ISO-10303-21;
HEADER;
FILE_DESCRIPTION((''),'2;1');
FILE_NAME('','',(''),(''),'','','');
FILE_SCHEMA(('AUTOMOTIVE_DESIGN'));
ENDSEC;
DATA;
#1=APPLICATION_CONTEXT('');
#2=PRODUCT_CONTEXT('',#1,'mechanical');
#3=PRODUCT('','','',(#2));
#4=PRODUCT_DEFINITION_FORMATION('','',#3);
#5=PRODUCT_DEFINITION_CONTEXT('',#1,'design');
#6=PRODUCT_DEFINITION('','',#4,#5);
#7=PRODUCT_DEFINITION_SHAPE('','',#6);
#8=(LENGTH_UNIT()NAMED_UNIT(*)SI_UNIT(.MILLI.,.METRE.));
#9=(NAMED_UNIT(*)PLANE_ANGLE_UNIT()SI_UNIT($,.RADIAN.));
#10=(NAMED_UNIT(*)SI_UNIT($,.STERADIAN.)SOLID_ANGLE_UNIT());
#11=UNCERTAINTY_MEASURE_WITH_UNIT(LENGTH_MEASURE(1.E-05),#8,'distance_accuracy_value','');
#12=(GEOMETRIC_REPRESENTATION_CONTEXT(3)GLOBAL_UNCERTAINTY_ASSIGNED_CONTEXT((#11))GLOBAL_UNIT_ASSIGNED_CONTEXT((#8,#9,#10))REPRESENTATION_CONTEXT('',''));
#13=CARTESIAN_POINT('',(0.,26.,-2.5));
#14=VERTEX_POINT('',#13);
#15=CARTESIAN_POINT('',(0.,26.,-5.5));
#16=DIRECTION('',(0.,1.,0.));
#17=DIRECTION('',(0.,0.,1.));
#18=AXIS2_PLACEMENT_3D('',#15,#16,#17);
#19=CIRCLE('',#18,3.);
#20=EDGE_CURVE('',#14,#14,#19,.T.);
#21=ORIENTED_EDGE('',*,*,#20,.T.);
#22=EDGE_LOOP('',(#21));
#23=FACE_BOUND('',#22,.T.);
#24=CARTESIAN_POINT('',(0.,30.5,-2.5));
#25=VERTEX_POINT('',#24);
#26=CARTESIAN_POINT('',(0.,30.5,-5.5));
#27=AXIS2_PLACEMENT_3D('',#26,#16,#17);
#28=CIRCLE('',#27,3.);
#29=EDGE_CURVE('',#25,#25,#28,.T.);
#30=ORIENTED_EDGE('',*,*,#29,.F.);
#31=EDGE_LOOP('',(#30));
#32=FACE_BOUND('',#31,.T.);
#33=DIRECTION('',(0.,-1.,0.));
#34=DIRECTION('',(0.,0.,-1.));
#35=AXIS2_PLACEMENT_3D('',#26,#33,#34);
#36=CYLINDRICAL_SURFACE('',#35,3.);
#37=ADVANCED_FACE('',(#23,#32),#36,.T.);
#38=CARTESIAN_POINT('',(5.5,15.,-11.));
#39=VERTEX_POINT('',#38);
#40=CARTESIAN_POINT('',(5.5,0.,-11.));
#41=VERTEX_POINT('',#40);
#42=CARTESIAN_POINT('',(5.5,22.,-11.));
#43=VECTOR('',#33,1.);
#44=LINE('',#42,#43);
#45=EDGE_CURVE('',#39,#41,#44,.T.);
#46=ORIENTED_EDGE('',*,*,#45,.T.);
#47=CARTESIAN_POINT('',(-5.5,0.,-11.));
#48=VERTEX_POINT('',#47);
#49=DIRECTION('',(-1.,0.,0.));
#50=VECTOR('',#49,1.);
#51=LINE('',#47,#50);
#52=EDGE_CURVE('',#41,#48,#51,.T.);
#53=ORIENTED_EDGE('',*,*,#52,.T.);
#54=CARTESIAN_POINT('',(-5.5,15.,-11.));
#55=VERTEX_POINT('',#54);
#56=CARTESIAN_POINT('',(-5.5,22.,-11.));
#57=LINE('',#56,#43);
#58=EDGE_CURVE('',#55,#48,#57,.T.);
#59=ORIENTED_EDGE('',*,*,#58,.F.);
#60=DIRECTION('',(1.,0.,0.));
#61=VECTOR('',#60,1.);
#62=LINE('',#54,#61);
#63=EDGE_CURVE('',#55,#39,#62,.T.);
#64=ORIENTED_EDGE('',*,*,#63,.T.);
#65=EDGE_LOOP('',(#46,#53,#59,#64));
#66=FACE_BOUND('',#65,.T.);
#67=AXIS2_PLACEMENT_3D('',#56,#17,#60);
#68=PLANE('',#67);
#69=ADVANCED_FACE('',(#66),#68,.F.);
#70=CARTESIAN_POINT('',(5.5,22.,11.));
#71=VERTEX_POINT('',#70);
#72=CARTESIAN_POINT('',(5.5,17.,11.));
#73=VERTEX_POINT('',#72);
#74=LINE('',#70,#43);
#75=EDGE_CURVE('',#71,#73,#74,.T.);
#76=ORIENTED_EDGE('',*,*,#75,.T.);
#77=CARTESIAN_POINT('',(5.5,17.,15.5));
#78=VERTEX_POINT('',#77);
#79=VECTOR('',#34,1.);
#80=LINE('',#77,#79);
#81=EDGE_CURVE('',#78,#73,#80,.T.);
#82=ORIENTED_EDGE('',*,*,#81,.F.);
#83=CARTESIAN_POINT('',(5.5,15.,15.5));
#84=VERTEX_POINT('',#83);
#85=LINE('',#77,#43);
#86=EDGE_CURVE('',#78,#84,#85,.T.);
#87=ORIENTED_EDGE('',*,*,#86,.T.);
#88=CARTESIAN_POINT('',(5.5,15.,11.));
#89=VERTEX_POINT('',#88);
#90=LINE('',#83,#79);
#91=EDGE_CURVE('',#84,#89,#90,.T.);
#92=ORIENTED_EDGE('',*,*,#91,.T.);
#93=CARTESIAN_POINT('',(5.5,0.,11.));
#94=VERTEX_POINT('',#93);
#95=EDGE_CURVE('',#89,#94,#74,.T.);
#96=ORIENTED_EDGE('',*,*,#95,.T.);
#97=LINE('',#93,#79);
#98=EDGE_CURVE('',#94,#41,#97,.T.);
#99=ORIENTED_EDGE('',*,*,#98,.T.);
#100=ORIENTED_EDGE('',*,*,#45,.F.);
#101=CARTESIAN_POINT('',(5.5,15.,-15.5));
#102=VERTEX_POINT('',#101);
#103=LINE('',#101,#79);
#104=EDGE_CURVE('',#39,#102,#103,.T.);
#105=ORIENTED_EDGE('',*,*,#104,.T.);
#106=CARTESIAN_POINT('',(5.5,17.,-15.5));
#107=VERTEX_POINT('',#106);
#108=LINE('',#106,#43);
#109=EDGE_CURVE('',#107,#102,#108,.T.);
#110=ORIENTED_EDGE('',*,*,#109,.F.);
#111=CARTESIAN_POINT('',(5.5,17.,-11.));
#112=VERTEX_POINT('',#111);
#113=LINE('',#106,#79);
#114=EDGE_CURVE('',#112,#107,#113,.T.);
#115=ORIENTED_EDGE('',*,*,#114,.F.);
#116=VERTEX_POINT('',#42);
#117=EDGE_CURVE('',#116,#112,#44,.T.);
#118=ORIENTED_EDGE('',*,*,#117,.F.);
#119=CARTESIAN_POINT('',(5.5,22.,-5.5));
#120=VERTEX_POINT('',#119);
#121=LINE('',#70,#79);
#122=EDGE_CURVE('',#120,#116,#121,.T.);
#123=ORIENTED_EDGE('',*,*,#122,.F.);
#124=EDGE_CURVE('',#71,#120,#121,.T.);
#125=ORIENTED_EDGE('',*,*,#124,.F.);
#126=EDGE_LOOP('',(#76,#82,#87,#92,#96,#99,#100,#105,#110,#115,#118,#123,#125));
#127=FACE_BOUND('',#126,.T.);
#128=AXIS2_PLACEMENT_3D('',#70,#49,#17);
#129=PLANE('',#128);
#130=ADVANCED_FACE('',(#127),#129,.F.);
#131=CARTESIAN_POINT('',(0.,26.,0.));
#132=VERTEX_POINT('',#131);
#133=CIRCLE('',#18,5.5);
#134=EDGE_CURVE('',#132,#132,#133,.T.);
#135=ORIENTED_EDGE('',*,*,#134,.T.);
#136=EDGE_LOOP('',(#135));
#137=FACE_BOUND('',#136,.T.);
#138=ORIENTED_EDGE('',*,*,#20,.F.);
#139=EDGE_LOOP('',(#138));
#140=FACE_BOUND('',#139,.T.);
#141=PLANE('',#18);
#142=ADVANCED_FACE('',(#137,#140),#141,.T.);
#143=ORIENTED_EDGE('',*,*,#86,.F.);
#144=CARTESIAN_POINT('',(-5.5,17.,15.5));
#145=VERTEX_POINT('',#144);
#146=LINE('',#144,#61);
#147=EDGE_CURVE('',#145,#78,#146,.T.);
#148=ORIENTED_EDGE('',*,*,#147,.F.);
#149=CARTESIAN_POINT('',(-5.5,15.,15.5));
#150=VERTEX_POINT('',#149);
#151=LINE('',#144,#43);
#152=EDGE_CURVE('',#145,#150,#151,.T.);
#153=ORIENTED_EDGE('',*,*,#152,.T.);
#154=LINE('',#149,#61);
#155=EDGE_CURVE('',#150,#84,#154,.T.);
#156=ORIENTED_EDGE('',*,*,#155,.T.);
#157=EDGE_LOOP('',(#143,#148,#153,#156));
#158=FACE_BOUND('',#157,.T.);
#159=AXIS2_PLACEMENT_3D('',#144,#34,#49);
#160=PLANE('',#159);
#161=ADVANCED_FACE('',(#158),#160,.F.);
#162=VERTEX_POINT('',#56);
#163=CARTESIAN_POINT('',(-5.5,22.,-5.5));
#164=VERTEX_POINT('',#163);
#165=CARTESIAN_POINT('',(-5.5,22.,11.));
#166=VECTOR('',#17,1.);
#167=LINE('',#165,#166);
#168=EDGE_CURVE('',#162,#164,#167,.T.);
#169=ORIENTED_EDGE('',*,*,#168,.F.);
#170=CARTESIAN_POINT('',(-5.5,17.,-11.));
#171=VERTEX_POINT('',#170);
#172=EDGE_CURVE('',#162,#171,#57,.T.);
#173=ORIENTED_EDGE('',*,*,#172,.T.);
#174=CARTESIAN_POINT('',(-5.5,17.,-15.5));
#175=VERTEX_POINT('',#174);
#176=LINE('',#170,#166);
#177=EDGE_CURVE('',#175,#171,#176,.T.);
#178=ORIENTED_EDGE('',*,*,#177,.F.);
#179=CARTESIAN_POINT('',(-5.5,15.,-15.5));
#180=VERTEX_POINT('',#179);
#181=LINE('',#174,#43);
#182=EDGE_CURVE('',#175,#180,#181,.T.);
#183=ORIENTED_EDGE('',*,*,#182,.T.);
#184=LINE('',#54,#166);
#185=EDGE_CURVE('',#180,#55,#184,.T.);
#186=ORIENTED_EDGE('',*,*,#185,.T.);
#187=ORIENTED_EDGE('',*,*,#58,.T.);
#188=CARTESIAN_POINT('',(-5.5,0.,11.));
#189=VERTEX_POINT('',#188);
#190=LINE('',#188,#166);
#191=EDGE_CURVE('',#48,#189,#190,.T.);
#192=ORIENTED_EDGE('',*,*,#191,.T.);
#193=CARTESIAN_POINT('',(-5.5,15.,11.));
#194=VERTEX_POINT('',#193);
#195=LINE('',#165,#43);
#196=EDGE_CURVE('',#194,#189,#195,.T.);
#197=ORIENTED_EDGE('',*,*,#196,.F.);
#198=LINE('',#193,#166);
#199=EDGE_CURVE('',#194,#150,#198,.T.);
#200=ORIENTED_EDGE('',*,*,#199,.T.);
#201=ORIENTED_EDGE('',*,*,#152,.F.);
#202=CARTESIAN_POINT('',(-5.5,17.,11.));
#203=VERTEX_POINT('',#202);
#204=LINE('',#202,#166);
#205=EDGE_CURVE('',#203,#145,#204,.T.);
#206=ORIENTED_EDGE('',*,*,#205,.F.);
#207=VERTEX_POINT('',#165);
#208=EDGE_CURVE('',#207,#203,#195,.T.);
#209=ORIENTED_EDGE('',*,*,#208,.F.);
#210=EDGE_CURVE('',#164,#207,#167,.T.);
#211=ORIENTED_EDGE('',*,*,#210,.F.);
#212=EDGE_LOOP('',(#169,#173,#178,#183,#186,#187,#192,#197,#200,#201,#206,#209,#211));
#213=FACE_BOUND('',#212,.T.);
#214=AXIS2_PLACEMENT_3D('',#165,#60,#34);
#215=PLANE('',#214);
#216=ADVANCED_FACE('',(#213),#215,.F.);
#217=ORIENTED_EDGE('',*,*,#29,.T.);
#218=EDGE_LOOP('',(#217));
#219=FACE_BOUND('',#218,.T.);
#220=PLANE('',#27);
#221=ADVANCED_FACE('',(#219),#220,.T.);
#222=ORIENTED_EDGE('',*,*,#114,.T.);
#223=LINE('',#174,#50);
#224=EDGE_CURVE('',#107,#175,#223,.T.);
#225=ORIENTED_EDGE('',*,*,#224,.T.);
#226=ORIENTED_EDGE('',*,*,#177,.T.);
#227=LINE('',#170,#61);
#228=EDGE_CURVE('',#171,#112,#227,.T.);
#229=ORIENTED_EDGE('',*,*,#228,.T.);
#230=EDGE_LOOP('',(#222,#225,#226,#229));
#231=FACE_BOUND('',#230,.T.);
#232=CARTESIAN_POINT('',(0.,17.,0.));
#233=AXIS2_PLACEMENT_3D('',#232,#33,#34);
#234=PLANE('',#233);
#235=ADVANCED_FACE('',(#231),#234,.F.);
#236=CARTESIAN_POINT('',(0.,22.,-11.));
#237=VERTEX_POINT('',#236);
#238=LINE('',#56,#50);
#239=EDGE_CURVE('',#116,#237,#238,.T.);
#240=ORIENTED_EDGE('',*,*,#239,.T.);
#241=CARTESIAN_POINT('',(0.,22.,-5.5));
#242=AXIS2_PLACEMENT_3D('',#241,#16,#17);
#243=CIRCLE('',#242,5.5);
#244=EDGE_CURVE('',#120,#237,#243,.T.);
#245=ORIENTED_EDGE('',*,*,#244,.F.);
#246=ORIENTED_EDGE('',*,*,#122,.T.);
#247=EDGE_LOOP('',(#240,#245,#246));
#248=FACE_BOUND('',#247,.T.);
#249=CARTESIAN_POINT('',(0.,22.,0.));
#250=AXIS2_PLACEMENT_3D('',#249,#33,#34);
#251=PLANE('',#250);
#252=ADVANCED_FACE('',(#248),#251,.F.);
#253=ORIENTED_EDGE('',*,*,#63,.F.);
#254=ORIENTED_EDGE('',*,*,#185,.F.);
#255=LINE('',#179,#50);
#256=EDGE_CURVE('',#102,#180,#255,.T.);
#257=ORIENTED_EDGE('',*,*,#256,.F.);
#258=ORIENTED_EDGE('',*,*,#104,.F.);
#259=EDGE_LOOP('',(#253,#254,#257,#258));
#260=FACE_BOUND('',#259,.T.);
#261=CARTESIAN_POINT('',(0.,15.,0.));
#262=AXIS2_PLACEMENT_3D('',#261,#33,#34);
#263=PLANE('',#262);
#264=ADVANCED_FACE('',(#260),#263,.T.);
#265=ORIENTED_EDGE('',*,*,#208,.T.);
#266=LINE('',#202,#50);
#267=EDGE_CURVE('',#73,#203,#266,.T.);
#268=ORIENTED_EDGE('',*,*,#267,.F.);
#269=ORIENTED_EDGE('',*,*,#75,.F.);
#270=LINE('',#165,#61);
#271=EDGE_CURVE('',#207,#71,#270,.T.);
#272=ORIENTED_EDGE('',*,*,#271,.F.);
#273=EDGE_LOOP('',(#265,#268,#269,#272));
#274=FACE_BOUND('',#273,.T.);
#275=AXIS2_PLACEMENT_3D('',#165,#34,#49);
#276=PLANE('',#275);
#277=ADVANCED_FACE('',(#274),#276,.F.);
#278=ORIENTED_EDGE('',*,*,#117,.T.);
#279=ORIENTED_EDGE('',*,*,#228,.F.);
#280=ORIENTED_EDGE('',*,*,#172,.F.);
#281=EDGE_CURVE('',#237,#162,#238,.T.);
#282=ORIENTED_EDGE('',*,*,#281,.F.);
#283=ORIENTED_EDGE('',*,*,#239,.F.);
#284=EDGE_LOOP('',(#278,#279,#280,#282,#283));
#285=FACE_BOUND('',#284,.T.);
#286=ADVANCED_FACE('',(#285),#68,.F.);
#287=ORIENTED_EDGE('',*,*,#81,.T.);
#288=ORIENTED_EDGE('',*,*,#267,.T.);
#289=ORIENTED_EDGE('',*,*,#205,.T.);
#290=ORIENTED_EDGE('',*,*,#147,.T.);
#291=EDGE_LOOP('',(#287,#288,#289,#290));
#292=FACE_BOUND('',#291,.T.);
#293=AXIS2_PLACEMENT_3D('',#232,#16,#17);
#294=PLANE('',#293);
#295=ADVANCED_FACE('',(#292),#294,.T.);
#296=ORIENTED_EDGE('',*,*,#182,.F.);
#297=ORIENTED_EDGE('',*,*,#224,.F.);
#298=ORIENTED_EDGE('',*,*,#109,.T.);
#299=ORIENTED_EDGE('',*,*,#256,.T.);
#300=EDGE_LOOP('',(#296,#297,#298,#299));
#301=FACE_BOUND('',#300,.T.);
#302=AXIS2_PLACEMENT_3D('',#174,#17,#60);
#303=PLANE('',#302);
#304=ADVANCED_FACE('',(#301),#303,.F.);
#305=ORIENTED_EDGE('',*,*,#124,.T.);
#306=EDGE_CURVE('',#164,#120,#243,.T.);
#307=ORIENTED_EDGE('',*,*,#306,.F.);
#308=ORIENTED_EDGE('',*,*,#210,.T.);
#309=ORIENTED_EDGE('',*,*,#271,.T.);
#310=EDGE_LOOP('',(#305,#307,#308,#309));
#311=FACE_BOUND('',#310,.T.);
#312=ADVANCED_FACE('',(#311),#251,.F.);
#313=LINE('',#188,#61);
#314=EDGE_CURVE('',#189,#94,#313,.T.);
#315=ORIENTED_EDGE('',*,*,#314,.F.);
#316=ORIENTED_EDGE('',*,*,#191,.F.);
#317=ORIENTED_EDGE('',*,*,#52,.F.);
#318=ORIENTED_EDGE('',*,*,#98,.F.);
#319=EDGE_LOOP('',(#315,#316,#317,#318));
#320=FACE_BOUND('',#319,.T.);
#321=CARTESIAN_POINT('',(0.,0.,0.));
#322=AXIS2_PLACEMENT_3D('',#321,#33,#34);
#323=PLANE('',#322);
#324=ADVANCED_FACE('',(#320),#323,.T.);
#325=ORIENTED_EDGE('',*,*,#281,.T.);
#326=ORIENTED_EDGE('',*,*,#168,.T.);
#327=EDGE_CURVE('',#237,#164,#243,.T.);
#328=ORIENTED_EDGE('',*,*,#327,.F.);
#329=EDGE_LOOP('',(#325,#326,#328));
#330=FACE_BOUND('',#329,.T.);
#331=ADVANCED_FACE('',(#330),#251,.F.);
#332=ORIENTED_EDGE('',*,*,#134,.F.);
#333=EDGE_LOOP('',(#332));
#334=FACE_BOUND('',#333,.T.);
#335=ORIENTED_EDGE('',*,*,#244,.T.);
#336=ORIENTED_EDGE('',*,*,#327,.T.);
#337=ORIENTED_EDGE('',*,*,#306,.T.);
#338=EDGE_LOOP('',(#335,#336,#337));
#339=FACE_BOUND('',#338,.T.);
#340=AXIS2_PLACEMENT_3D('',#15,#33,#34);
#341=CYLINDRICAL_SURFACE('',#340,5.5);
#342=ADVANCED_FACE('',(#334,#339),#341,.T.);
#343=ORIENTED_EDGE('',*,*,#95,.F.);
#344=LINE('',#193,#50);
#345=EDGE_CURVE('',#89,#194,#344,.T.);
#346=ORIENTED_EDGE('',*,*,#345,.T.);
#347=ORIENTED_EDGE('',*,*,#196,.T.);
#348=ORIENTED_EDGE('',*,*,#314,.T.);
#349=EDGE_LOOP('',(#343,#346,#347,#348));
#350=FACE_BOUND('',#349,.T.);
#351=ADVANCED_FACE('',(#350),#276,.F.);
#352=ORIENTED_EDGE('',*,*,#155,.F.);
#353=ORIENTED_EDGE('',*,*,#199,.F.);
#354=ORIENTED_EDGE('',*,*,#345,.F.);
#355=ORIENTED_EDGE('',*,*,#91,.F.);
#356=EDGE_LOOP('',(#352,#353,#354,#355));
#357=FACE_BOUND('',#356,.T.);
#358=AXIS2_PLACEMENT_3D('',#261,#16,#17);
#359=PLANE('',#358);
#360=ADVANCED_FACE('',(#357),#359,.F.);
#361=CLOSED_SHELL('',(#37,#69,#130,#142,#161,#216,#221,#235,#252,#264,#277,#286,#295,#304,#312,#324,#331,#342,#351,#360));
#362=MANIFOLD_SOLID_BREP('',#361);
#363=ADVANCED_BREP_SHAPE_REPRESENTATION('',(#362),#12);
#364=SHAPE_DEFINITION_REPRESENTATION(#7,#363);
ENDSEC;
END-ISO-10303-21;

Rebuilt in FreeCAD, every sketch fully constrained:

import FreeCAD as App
import Part
import Sketcher


def add_polygon(sketch, points):
    """Adds a closed chain of lines whose ends are joined by coincident constraints."""
    first, n = sketch.GeometryCount, len(points)
    for a, b in zip(points, points[1:] + points[:1]):
        sketch.addGeometry(Part.LineSegment(App.Vector(*a, 0), App.Vector(*b, 0)), False)
    for i in range(n):
        sketch.addConstraint(Sketcher.Constraint("Coincident", first + i, 2, first + (i + 1) % n, 1))

doc = App.newDocument("Part")
body = doc.addObject("PartDesign::Body", "Body")

sketch1 = doc.addObject("Sketcher::SketchObject", "Sketch")
body.addObject(sketch1)
sketch1.AttachmentSupport = (doc.XZ_Plane, [""])
sketch1.MapMode = "FlatFace"
add_polygon(sketch1, [(-5.5, -11), (-5.5, 11), (5.5, 11), (5.5, -11)])
sketch1.addConstraint([
    Sketcher.Constraint("Vertical", 0),
    Sketcher.Constraint("Horizontal", 1),
    Sketcher.Constraint("Vertical", 2),
    Sketcher.Constraint("Horizontal", 3),
    Sketcher.Constraint("Symmetric", 0, 2, 2, 2, -1, 1),
    Sketcher.Constraint("DistanceX", 1, 1, 1, 2, 11.0),
    Sketcher.Constraint("DistanceY", 0, 1, 0, 2, 22.0),
])
pad1 = doc.addObject("PartDesign::Pad", "Pad")
body.addObject(pad1)
pad1.Profile = sketch1
pad1.Length = 22
pad1.Reversed = True

sketch2 = doc.addObject("Sketcher::SketchObject", "Sketch001")
body.addObject(sketch2)
sketch2.AttachmentSupport = (doc.XZ_Plane, [""])
sketch2.MapMode = "FlatFace"
sketch2.AttachmentOffset = App.Placement(App.Vector(0, 0, -15), App.Rotation())
add_polygon(sketch2, [(-5.5, -15.5), (-5.5, -11), (5.5, -11), (5.5, -15.5)])
add_polygon(sketch2, [(-5.5, 11), (-5.5, 15.5), (5.5, 15.5), (5.5, 11)])
sketch2.addConstraint([
    Sketcher.Constraint("Vertical", 0),
    Sketcher.Constraint("Horizontal", 1),
    Sketcher.Constraint("Vertical", 2),
    Sketcher.Constraint("Horizontal", 3),
    Sketcher.Constraint("Vertical", 4),
    Sketcher.Constraint("Horizontal", 5),
    Sketcher.Constraint("Vertical", 6),
    Sketcher.Constraint("Horizontal", 7),
    Sketcher.Constraint("Symmetric", 2, 2, 4, 2, -1, 1),
    Sketcher.Constraint("Symmetric", 0, 2, 6, 2, -1, 1),
    Sketcher.Constraint("Vertical", 3, 2, 4, 2),
    Sketcher.Constraint("DistanceX", 1, 1, 1, 2, 11.0),
    Sketcher.Constraint("DistanceY", 0, 1, 0, 2, 4.5),
    Sketcher.Constraint("DistanceY", 0, 2, -1, 1, 11.0),
])
pad2 = doc.addObject("PartDesign::Pad", "Pad001")
body.addObject(pad2)
pad2.Profile = sketch2
pad2.Length = 2
pad2.Reversed = True

sketch3 = doc.addObject("Sketcher::SketchObject", "Sketch002")
body.addObject(sketch3)
sketch3.AttachmentSupport = (doc.XZ_Plane, [""])
sketch3.MapMode = "FlatFace"
sketch3.AttachmentOffset = App.Placement(App.Vector(0, 0, -22), App.Rotation())
sketch3.addGeometry(Part.Circle(App.Vector(0, -5.5, 0), App.Vector(0, 0, 1), 5.5), False)
sketch3.addConstraint([
    Sketcher.Constraint("PointOnObject", 0, 3, -2),
    Sketcher.Constraint("Diameter", 0, 11.0),
    Sketcher.Constraint("DistanceY", 0, 3, -1, 1, 5.5),
])
pad3 = doc.addObject("PartDesign::Pad", "Pad002")
body.addObject(pad3)
pad3.Profile = sketch3
pad3.Length = 4
pad3.Reversed = True

sketch4 = doc.addObject("Sketcher::SketchObject", "Sketch003")
body.addObject(sketch4)
sketch4.AttachmentSupport = (doc.XZ_Plane, [""])
sketch4.MapMode = "FlatFace"
sketch4.AttachmentOffset = App.Placement(App.Vector(0, 0, -26), App.Rotation())
sketch4.addGeometry(Part.Circle(App.Vector(0, -5.5, 0), App.Vector(0, 0, 1), 3), False)
sketch4.addConstraint([
    Sketcher.Constraint("PointOnObject", 0, 3, -2),
    Sketcher.Constraint("Diameter", 0, 6.0),
    Sketcher.Constraint("DistanceY", 0, 3, -1, 1, 5.5),
])
pad4 = doc.addObject("PartDesign::Pad", "Pad003")
body.addObject(pad4)
pad4.Profile = sketch4
pad4.Length = 4.5
pad4.Reversed = True

doc.recompute()
